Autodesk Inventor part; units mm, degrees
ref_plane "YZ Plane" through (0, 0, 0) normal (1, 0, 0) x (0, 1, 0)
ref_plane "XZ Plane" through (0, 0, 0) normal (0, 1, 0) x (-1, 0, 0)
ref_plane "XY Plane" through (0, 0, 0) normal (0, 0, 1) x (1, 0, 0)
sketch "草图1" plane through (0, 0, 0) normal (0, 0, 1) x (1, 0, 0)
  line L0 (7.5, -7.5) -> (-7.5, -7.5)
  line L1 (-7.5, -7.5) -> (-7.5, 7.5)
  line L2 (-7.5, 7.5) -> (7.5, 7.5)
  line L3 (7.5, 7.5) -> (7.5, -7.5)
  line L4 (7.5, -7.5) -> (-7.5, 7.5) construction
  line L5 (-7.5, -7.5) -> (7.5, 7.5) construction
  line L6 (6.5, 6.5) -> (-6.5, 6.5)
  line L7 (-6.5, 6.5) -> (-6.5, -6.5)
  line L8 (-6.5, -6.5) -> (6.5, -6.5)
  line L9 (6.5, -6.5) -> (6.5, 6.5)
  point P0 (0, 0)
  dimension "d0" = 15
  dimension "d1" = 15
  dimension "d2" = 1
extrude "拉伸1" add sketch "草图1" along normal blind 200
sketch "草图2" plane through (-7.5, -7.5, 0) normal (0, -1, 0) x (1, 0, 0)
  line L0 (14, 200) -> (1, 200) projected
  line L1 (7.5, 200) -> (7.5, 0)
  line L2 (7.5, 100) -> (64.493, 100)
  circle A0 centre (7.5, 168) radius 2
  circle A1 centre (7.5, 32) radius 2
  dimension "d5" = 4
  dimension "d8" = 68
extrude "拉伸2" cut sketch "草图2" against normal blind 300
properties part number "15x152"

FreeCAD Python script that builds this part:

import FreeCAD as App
import Part
import Sketcher


def add_polygon(sketch, points):
    """Adds a closed chain of lines whose ends are joined by coincident constraints."""
    first, n = sketch.GeometryCount, len(points)
    for a, b in zip(points, points[1:] + points[:1]):
        sketch.addGeometry(Part.LineSegment(App.Vector(*a, 0), App.Vector(*b, 0)), False)
    for i in range(n):
        sketch.addConstraint(Sketcher.Constraint("Coincident", first + i, 2, first + (i + 1) % n, 1))

doc = App.newDocument("Part")
params = doc.addObject("Spreadsheet::Sheet", "Params")
for row, (alias, value) in enumerate([
    ("sketch1_width", "15 mm"),
    ("pad1_length", "200 mm"),
    ("sketch2_diameter", "4 mm"),
    ("pocket1_length", "300 mm"),
], start=1):
    params.set(f"A{row}", alias)
    params.set(f"B{row}", "=" + value)
    params.setAlias(f"B{row}", alias)

body = doc.addObject("PartDesign::Body", "Body")

# Sketch on XY plane
sketch1 = body.newObject("Sketcher::SketchObject", "Sketch")
sketch1.AttachmentSupport = (doc.getObject("XY_Plane"), [""])
sketch1.MapMode = "FlatFace"
add_polygon(sketch1, [(-8, -8), (8, -8), (8, 8), (-8, 8)])  # lines 0-3
add_polygon(sketch1, [(-6, 6), (6, 6), (6, -6), (-6, -6)])  # lines 4-7
sketch1.addConstraint([
    Sketcher.Constraint("Horizontal", 0),
    Sketcher.Constraint("Vertical", 1),
    Sketcher.Constraint("Horizontal", 2),
    Sketcher.Constraint("Vertical", 3),
    Sketcher.Constraint("Horizontal", 4),
    Sketcher.Constraint("Vertical", 5),
    Sketcher.Constraint("Horizontal", 6),
    Sketcher.Constraint("Vertical", 7),
    Sketcher.Constraint("Symmetric", 0, 2, 2, 2, -1, 1),
    Sketcher.Constraint("Symmetric", 4, 2, 6, 2, -1, 1),
    Sketcher.Constraint("Equal", 2, 1),
    Sketcher.Constraint("Equal", 6, 5),
    Sketcher.Constraint("DistanceX", 0, 1, 0, 2, 15.0),
    Sketcher.Constraint("DistanceX", 4, 2, 1, 2, 1.0),
])
sketch1.setExpression("Constraints[20]", "Params.sketch1_width")
pad1 = body.newObject("PartDesign::Pad", "Pad")
pad1.Profile = sketch1
pad1.setExpression("Length", "Params.pad1_length")

# Sketch on XZ plane
sketch2 = body.newObject("Sketcher::SketchObject", "Sketch001")
sketch2.AttachmentSupport = (doc.getObject("XZ_Plane"), [""])
sketch2.MapMode = "FlatFace"
sketch2.AttachmentOffset = App.Placement(App.Vector(0, 0, 7.5), App.Rotation())
sketch2.addGeometry([
    Part.Circle(App.Vector(0, 168, 0), App.Vector(0, 0, 1), 2),
    Part.Circle(App.Vector(0, 32, 0), App.Vector(0, 0, 1), 2),
], False)
sketch2.addConstraint([
    Sketcher.Constraint("Equal", 0, 1),
    Sketcher.Constraint("PointOnObject", 0, 3, -2),
    Sketcher.Constraint("PointOnObject", 1, 3, -2),
    Sketcher.Constraint("Diameter", 0, 4.0),
    Sketcher.Constraint("DistanceY", -1, 1, 0, 3, 168.0),
    Sketcher.Constraint("DistanceY", -1, 1, 1, 3, 32.0),
])
sketch2.setExpression("Constraints[3]", "Params.sketch2_diameter")
pocket1 = body.newObject("PartDesign::Pocket", "Pocket")
pocket1.Profile = sketch2
pocket1.setExpression("Length", "Params.pocket1_length")

doc.recompute()
